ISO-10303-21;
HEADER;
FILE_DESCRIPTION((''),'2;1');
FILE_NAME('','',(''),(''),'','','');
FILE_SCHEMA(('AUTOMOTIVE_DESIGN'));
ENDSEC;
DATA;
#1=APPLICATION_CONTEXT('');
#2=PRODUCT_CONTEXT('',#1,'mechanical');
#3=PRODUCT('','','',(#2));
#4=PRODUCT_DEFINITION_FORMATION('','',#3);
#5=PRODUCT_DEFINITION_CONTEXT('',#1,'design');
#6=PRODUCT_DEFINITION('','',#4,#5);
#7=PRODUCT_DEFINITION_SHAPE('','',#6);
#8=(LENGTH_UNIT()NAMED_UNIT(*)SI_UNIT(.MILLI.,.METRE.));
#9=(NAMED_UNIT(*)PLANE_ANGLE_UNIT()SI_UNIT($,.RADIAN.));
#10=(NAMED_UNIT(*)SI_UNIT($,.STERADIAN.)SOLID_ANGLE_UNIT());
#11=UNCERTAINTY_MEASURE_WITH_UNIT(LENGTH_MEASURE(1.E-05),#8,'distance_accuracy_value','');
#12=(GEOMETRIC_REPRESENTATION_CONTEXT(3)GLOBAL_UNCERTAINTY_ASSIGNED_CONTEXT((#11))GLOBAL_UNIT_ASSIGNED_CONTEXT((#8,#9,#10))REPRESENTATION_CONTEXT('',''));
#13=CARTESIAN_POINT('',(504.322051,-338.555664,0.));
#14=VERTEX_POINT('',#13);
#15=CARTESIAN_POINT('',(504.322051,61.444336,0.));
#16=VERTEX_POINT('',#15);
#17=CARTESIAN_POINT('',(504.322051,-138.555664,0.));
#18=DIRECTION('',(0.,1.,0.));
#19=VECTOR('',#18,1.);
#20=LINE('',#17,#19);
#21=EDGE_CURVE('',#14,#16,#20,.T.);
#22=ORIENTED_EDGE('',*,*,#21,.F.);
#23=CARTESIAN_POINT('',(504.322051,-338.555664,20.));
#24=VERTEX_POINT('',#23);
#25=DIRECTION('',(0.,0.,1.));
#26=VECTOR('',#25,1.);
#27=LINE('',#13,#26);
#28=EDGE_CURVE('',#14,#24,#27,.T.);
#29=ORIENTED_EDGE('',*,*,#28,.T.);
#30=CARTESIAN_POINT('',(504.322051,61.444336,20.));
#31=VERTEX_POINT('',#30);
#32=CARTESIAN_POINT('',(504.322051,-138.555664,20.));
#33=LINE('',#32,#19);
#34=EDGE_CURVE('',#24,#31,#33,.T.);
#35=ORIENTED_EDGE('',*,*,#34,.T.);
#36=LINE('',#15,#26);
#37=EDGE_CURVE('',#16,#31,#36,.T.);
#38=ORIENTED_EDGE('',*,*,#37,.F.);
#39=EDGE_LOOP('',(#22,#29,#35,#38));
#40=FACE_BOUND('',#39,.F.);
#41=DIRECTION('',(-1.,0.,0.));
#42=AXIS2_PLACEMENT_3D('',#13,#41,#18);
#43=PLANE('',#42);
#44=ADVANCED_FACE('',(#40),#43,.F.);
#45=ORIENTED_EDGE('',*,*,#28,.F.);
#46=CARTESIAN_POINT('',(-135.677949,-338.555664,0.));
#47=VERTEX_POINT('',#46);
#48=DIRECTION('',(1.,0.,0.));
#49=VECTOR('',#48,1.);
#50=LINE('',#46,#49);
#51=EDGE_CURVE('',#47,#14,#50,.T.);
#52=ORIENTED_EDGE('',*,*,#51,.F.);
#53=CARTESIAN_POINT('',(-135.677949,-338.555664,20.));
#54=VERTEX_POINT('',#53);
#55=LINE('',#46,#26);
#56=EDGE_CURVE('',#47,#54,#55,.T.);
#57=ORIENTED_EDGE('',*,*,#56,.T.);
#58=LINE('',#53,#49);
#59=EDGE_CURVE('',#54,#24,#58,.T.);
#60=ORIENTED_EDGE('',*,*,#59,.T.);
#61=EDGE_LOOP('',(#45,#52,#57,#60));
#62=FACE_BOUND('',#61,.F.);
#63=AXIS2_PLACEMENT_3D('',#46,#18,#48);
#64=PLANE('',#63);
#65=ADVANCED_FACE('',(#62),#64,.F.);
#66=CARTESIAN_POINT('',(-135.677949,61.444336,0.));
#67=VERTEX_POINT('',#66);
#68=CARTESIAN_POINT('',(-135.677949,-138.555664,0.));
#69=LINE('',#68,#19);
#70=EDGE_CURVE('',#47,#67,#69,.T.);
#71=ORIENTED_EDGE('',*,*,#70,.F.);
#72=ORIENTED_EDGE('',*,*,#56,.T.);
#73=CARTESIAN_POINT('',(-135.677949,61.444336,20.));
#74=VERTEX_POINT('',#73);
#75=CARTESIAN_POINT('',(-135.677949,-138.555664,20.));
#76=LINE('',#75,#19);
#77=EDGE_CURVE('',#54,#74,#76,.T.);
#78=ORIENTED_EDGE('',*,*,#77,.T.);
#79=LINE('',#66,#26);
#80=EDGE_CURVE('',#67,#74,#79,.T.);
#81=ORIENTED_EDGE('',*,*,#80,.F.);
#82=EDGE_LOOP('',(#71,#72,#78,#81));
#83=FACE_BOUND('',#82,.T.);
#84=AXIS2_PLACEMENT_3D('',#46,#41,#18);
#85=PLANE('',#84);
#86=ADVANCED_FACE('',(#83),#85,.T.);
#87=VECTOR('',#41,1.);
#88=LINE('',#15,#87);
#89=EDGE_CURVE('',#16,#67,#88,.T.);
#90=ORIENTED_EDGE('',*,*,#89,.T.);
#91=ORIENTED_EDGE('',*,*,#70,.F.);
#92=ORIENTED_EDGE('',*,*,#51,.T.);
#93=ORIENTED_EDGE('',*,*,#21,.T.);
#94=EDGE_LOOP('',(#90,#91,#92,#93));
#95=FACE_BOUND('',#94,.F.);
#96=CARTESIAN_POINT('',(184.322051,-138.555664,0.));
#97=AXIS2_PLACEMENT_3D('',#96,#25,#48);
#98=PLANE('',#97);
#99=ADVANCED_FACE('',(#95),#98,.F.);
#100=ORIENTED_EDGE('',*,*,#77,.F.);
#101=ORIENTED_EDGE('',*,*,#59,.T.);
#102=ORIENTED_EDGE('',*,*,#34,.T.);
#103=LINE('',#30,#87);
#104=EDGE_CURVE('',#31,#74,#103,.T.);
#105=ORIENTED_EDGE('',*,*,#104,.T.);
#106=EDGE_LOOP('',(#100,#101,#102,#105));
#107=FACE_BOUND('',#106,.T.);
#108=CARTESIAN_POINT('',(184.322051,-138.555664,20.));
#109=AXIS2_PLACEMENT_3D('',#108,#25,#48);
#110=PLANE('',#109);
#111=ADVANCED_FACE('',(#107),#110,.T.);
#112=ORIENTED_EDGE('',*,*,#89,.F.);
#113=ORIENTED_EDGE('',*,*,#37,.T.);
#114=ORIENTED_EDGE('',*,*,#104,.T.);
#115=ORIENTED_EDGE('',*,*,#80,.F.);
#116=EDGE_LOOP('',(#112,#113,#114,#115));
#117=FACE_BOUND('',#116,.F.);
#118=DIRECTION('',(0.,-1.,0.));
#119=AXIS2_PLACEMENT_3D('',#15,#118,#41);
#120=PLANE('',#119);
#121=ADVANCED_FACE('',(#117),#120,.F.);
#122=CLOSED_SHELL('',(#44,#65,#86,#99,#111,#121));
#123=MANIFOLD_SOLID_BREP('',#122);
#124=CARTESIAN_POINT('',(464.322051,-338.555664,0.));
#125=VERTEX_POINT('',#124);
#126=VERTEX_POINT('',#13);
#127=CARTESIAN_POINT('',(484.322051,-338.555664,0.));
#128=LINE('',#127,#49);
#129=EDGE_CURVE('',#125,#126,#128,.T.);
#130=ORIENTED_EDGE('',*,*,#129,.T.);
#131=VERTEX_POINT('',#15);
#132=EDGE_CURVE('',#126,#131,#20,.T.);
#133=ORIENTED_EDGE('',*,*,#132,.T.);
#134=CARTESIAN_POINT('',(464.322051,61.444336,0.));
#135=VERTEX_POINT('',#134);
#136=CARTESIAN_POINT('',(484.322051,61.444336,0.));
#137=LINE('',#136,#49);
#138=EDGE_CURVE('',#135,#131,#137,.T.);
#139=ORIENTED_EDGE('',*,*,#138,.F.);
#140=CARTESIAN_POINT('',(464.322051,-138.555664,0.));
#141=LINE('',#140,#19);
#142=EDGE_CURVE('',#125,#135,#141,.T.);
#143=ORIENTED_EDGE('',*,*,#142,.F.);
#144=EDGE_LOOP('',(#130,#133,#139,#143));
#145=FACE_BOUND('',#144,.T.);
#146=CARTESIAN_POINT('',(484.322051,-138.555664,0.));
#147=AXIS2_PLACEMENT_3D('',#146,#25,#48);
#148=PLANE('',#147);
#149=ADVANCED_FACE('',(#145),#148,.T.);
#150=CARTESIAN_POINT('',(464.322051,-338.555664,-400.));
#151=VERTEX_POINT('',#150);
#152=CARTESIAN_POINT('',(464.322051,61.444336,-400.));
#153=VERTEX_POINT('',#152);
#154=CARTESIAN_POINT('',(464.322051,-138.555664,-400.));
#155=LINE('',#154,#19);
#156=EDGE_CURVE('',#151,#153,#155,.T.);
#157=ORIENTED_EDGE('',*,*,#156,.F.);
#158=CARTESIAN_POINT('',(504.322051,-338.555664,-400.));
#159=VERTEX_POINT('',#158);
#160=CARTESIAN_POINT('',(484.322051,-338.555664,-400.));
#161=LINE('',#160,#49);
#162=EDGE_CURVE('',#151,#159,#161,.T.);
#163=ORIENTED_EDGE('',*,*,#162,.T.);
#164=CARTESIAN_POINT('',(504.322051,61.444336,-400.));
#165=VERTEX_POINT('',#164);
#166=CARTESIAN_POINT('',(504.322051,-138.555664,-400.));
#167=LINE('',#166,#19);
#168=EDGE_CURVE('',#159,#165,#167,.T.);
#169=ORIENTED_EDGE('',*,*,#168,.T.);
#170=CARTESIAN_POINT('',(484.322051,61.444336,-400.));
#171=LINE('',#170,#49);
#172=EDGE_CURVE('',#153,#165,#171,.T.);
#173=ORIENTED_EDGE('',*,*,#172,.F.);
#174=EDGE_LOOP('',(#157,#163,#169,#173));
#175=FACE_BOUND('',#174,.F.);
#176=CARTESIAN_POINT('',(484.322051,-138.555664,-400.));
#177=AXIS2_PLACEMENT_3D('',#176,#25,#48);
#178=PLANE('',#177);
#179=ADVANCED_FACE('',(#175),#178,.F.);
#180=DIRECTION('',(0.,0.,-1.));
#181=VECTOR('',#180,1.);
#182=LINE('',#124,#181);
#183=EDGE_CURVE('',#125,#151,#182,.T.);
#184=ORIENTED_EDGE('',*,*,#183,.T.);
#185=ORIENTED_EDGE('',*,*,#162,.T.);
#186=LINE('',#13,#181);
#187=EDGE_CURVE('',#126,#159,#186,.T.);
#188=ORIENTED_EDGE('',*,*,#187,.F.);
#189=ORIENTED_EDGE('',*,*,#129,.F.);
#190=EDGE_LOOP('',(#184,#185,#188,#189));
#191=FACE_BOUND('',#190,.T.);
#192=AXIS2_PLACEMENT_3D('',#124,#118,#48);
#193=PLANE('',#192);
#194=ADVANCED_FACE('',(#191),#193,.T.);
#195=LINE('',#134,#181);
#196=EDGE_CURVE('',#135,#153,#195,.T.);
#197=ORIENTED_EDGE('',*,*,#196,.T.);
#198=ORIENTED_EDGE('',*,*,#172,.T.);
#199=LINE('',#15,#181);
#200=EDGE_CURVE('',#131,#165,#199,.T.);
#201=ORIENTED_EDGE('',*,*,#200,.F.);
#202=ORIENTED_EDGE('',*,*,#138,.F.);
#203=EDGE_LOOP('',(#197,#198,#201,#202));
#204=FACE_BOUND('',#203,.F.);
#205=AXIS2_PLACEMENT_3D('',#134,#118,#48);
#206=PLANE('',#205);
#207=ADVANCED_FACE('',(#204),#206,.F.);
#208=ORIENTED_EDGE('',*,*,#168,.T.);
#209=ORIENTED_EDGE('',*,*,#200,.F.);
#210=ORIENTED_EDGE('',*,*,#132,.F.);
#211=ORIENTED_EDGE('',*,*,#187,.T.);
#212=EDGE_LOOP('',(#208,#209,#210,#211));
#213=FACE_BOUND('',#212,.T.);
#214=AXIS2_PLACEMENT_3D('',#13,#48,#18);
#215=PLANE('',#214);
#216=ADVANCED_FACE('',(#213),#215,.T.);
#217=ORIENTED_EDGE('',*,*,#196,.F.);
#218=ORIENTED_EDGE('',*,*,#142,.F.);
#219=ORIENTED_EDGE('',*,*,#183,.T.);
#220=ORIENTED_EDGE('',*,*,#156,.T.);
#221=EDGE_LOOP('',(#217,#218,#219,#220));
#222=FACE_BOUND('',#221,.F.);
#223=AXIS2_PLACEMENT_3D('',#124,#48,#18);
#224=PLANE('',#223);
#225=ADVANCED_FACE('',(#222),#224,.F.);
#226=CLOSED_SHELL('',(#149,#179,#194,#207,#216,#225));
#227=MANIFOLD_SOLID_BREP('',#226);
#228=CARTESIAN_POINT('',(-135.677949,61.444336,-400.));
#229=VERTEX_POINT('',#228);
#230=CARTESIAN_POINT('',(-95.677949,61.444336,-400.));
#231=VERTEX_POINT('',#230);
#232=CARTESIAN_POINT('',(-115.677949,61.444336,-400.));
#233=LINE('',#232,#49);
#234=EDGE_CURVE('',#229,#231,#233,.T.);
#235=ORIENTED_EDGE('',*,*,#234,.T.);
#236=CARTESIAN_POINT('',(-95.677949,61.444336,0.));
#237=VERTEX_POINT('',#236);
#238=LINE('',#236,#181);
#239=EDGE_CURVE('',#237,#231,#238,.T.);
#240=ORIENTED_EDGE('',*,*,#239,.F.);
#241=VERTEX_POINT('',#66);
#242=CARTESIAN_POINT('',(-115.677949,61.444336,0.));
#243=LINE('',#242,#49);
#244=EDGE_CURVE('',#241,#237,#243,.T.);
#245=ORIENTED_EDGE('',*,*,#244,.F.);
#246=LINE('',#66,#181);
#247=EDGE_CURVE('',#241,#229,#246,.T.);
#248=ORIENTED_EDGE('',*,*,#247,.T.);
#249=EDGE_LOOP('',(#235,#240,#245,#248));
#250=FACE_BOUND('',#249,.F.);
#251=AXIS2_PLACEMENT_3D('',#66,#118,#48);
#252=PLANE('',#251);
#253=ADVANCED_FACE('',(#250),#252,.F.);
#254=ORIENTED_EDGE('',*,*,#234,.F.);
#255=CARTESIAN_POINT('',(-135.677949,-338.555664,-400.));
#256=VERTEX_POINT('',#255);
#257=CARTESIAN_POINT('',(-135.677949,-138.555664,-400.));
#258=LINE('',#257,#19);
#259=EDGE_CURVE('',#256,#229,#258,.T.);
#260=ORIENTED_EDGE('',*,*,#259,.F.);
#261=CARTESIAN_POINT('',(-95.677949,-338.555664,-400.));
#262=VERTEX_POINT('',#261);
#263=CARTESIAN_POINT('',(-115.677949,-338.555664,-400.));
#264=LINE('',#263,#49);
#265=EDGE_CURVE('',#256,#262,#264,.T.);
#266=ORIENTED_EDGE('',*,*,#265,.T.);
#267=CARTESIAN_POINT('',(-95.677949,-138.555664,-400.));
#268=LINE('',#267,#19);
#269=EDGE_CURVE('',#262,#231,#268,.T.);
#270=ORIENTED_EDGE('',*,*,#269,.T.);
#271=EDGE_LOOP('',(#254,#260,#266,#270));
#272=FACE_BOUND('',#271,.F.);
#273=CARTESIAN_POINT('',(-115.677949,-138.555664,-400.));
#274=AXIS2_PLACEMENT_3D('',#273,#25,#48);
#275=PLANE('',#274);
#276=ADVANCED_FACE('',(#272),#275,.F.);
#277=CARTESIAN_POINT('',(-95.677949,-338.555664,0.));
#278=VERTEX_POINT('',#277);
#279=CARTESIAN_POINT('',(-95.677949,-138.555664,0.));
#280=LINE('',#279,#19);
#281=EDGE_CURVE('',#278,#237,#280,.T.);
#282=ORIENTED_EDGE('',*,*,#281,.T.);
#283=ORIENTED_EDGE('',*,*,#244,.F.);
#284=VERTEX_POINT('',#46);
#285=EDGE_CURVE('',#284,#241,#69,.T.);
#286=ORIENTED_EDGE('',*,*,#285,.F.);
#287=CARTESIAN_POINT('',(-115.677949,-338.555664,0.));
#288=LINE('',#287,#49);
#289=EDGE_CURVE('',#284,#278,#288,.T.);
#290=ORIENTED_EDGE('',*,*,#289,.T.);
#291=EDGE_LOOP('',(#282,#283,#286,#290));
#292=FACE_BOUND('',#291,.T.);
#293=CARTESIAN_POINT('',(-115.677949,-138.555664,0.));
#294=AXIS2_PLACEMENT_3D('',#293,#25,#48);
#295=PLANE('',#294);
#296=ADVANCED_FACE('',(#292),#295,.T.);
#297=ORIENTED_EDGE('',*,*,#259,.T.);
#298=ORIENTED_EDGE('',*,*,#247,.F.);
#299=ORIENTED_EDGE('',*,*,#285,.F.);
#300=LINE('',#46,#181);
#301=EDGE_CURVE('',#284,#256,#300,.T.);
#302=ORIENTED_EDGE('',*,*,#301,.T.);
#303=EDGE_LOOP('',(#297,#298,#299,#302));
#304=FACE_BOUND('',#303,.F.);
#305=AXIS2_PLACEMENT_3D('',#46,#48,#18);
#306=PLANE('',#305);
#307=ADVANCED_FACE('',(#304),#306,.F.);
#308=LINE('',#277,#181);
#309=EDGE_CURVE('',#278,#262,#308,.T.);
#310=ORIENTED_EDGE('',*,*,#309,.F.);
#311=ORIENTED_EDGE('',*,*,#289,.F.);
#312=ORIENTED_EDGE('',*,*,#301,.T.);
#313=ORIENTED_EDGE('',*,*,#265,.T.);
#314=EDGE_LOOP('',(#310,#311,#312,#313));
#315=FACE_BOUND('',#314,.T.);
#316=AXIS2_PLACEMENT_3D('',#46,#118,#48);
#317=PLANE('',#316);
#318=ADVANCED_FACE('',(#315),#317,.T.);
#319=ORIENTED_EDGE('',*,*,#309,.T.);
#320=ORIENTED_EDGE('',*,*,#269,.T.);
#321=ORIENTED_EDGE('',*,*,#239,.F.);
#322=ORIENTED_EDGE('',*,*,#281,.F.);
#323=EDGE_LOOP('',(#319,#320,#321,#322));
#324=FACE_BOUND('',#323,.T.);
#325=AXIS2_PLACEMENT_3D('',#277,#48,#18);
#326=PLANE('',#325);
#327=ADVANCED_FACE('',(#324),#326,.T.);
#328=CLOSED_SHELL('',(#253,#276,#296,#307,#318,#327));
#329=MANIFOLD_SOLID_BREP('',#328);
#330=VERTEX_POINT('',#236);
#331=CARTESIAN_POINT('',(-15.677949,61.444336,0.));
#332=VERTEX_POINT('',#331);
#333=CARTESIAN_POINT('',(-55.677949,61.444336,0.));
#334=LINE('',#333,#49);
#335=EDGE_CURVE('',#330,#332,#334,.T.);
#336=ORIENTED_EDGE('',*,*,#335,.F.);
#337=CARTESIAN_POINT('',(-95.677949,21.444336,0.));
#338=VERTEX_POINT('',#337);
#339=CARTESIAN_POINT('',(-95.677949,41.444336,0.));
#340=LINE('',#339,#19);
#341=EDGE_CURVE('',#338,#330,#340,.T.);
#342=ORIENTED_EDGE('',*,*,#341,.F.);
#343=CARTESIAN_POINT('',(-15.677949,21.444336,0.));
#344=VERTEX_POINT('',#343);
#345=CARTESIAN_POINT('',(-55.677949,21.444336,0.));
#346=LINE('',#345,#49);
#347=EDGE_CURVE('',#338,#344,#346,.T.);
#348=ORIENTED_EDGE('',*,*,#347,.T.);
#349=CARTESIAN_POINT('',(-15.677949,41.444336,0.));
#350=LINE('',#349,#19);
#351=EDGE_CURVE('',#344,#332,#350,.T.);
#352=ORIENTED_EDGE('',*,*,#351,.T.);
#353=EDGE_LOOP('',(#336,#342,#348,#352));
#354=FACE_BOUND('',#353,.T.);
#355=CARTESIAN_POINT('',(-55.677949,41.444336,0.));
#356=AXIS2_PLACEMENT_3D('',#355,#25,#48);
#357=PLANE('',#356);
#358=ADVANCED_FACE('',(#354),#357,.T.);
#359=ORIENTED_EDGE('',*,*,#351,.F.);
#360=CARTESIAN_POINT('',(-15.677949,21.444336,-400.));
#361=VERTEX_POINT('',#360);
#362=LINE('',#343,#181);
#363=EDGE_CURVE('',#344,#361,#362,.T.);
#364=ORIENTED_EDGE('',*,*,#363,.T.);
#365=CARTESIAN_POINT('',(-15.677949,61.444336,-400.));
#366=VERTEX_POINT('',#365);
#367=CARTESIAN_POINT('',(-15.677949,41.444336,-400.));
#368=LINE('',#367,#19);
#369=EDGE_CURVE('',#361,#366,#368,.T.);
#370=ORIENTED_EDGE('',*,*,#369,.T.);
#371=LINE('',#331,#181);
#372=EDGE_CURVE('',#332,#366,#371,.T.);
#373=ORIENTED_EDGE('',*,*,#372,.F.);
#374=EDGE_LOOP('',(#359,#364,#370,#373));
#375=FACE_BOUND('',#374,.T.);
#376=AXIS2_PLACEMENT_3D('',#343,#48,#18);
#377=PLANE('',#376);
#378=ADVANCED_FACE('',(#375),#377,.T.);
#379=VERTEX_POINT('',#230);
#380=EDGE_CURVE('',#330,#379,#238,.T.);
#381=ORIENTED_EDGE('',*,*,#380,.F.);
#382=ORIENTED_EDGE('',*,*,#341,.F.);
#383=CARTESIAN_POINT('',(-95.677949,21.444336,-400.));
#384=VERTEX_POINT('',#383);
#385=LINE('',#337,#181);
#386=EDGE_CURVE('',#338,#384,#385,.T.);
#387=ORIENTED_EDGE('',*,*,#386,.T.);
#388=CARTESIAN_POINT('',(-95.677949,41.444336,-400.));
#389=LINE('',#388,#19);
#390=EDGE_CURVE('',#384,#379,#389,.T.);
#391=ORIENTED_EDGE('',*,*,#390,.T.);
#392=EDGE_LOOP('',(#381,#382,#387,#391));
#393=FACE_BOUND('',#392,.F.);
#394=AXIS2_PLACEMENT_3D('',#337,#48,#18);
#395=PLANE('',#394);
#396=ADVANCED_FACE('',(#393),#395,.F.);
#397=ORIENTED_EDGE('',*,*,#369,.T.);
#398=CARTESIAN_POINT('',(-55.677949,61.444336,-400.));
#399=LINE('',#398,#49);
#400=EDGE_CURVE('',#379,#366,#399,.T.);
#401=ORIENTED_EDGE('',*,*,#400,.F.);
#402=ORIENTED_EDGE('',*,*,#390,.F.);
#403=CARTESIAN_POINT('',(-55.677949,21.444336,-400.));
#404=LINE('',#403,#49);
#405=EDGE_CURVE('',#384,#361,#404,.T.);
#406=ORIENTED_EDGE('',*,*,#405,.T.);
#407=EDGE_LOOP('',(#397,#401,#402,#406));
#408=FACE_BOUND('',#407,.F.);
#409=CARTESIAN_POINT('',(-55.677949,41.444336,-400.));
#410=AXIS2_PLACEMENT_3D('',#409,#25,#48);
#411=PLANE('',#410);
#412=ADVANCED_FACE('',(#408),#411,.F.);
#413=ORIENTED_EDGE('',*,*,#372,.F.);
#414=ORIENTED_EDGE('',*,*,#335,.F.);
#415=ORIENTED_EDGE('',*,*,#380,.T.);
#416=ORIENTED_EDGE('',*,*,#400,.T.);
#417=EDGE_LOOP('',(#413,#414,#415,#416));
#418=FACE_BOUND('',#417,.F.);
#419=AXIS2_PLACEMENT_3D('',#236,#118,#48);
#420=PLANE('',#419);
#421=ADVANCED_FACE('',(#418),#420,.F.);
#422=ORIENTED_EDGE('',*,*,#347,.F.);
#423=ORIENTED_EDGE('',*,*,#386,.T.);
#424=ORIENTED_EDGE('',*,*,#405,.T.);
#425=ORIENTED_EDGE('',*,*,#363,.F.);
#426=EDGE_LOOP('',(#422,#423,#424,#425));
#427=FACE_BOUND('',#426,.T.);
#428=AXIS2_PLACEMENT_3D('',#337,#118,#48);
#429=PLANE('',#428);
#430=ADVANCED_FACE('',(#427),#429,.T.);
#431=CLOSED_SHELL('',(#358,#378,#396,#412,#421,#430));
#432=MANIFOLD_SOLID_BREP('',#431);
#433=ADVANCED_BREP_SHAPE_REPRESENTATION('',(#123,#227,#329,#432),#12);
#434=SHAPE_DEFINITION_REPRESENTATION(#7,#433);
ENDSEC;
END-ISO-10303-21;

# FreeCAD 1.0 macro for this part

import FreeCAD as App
import Part
import Sketcher

V = App.Vector

doc = App.newDocument("Part")
body = doc.addObject("PartDesign::Body", "Body")

sketch1 = body.newObject("Sketcher::SketchObject", "Sketch")
sketch1.AttachmentSupport = (doc.getObject("XY_Plane"), [""])
sketch1.MapMode = "FlatFace"
sketch1.addGeometry(Part.LineSegment(V(-136, 61, 0), V(-136, -339, 0)), False)
sketch1.addGeometry(Part.LineSegment(V(-136, -339, 0), V(504, -339, 0)), False)
sketch1.addGeometry(Part.LineSegment(V(504, -339, 0), V(504, 61, 0)), False)
sketch1.addGeometry(Part.LineSegment(V(504, 61, 0), V(-136, 61, 0)), False)
sketch1.addConstraint(Sketcher.Constraint("Coincident", 0, 2, 1, 1))
sketch1.addConstraint(Sketcher.Constraint("Coincident", 1, 2, 2, 1))
sketch1.addConstraint(Sketcher.Constraint("Coincident", 2, 2, 3, 1))
sketch1.addConstraint(Sketcher.Constraint("Coincident", 3, 2, 0, 1))
sketch1.addConstraint(Sketcher.Constraint("Vertical", 0))
sketch1.addConstraint(Sketcher.Constraint("Horizontal", 1))
sketch1.addConstraint(Sketcher.Constraint("Vertical", 2))
sketch1.addConstraint(Sketcher.Constraint("Horizontal", 3))
sketch1.addConstraint(Sketcher.Constraint("DistanceX", 1, 1, 1, 2, 640.0))
sketch1.addConstraint(Sketcher.Constraint("DistanceY", 0, 2, 0, 1, 400.0))
sketch1.addConstraint(Sketcher.Constraint("DistanceX", 0, 2, -1, 1, 135.677949))
sketch1.addConstraint(Sketcher.Constraint("DistanceY", 0, 2, -1, 1, 338.555664))
pad1 = body.newObject("PartDesign::Pad", "Pad")
pad1.Profile = sketch1
pad1.Length = 20
body2 = doc.addObject("PartDesign::Body", "Body001")
body2.AllowCompound = True

sketch2 = body2.newObject("Sketcher::SketchObject", "Sketch001")
sketch2.AttachmentSupport = (doc.getObject("XY_Plane001"), [""])
sketch2.MapMode = "FlatFace"
sketch2.addGeometry(Part.LineSegment(V(-136, 61, 0), V(-136, -339, 0)), False)
sketch2.addGeometry(Part.LineSegment(V(-136, -339, 0), V(-96, -339, 0)), False)
sketch2.addGeometry(Part.LineSegment(V(-96, -339, 0), V(-96, 61, 0)), False)
sketch2.addGeometry(Part.LineSegment(V(-96, 61, 0), V(-136, 61, 0)), False)
sketch2.addGeometry(Part.LineSegment(V(464, 61, 0), V(464, -339, 0)), False)
sketch2.addGeometry(Part.LineSegment(V(464, -339, 0), V(504, -339, 0)), False)
sketch2.addGeometry(Part.LineSegment(V(504, -339, 0), V(504, 61, 0)), False)
sketch2.addGeometry(Part.LineSegment(V(504, 61, 0), V(464, 61, 0)), False)
sketch2.addConstraint(Sketcher.Constraint("Coincident", 0, 2, 1, 1))
sketch2.addConstraint(Sketcher.Constraint("Coincident", 1, 2, 2, 1))
sketch2.addConstraint(Sketcher.Constraint("Coincident", 2, 2, 3, 1))
sketch2.addConstraint(Sketcher.Constraint("Coincident", 3, 2, 0, 1))
sketch2.addConstraint(Sketcher.Constraint("Coincident", 4, 2, 5, 1))
sketch2.addConstraint(Sketcher.Constraint("Coincident", 5, 2, 6, 1))
sketch2.addConstraint(Sketcher.Constraint("Coincident", 6, 2, 7, 1))
sketch2.addConstraint(Sketcher.Constraint("Coincident", 7, 2, 4, 1))
sketch2.addConstraint(Sketcher.Constraint("Vertical", 0))
sketch2.addConstraint(Sketcher.Constraint("Horizontal", 1))
sketch2.addConstraint(Sketcher.Constraint("Vertical", 2))
sketch2.addConstraint(Sketcher.Constraint("Horizontal", 3))
sketch2.addConstraint(Sketcher.Constraint("Vertical", 4))
sketch2.addConstraint(Sketcher.Constraint("Horizontal", 5))
sketch2.addConstraint(Sketcher.Constraint("Vertical", 6))
sketch2.addConstraint(Sketcher.Constraint("Horizontal", 7))
sketch2.addConstraint(Sketcher.Constraint("Horizontal", 1, 2, 4, 2))
sketch2.addConstraint(Sketcher.Constraint("Horizontal", 3, 2, 6, 2))
sketch2.addConstraint(Sketcher.Constraint("Equal", 3, 5))
sketch2.addConstraint(Sketcher.Constraint("DistanceX", 1, 1, 1, 2, 40.0))
sketch2.addConstraint(Sketcher.Constraint("DistanceY", 0, 2, 0, 1, 400.0))
sketch2.addConstraint(Sketcher.Constraint("DistanceX", 1, 2, 4, 2, 560.0))
sketch2.addConstraint(Sketcher.Constraint("DistanceX", 0, 2, -1, 1, 135.677949))
sketch2.addConstraint(Sketcher.Constraint("DistanceY", 0, 2, -1, 1, 338.555664))
pad2 = body2.newObject("PartDesign::Pad", "Pad001")
pad2.Profile = sketch2
pad2.Length = 400
pad2.Reversed = True
body3 = doc.addObject("PartDesign::Body", "Body002")

sketch3 = body3.newObject("Sketcher::SketchObject", "Sketch002")
sketch3.AttachmentSupport = (doc.getObject("XY_Plane002"), [""])
sketch3.MapMode = "FlatFace"
sketch3.addGeometry(Part.LineSegment(V(-96, 61, 0), V(-96, 21, 0)), False)
sketch3.addGeometry(Part.LineSegment(V(-96, 21, 0), V(-16, 21, 0)), False)
sketch3.addGeometry(Part.LineSegment(V(-16, 21, 0), V(-16, 61, 0)), False)
sketch3.addGeometry(Part.LineSegment(V(-16, 61, 0), V(-96, 61, 0)), False)
sketch3.addConstraint(Sketcher.Constraint("Coincident", 0, 2, 1, 1))
sketch3.addConstraint(Sketcher.Constraint("Coincident", 1, 2, 2, 1))
sketch3.addConstraint(Sketcher.Constraint("Coincident", 2, 2, 3, 1))
sketch3.addConstraint(Sketcher.Constraint("Coincident", 3, 2, 0, 1))
sketch3.addConstraint(Sketcher.Constraint("Vertical", 0))
sketch3.addConstraint(Sketcher.Constraint("Horizontal", 1))
sketch3.addConstraint(Sketcher.Constraint("Vertical", 2))
sketch3.addConstraint(Sketcher.Constraint("Horizontal", 3))
sketch3.addConstraint(Sketcher.Constraint("DistanceX", 1, 1, 1, 2, 80.0))
sketch3.addConstraint(Sketcher.Constraint("DistanceY", 0, 2, 0, 1, 40.0))
sketch3.addConstraint(Sketcher.Constraint("DistanceX", 0, 2, -1, 1, 95.677949))
sketch3.addConstraint(Sketcher.Constraint("DistanceY", -1, 1, 0, 2, 21.444336))
pad3 = body3.newObject("PartDesign::Pad", "Pad002")
pad3.Profile = sketch3
pad3.Length = 400
pad3.Reversed = True

doc.recompute()
